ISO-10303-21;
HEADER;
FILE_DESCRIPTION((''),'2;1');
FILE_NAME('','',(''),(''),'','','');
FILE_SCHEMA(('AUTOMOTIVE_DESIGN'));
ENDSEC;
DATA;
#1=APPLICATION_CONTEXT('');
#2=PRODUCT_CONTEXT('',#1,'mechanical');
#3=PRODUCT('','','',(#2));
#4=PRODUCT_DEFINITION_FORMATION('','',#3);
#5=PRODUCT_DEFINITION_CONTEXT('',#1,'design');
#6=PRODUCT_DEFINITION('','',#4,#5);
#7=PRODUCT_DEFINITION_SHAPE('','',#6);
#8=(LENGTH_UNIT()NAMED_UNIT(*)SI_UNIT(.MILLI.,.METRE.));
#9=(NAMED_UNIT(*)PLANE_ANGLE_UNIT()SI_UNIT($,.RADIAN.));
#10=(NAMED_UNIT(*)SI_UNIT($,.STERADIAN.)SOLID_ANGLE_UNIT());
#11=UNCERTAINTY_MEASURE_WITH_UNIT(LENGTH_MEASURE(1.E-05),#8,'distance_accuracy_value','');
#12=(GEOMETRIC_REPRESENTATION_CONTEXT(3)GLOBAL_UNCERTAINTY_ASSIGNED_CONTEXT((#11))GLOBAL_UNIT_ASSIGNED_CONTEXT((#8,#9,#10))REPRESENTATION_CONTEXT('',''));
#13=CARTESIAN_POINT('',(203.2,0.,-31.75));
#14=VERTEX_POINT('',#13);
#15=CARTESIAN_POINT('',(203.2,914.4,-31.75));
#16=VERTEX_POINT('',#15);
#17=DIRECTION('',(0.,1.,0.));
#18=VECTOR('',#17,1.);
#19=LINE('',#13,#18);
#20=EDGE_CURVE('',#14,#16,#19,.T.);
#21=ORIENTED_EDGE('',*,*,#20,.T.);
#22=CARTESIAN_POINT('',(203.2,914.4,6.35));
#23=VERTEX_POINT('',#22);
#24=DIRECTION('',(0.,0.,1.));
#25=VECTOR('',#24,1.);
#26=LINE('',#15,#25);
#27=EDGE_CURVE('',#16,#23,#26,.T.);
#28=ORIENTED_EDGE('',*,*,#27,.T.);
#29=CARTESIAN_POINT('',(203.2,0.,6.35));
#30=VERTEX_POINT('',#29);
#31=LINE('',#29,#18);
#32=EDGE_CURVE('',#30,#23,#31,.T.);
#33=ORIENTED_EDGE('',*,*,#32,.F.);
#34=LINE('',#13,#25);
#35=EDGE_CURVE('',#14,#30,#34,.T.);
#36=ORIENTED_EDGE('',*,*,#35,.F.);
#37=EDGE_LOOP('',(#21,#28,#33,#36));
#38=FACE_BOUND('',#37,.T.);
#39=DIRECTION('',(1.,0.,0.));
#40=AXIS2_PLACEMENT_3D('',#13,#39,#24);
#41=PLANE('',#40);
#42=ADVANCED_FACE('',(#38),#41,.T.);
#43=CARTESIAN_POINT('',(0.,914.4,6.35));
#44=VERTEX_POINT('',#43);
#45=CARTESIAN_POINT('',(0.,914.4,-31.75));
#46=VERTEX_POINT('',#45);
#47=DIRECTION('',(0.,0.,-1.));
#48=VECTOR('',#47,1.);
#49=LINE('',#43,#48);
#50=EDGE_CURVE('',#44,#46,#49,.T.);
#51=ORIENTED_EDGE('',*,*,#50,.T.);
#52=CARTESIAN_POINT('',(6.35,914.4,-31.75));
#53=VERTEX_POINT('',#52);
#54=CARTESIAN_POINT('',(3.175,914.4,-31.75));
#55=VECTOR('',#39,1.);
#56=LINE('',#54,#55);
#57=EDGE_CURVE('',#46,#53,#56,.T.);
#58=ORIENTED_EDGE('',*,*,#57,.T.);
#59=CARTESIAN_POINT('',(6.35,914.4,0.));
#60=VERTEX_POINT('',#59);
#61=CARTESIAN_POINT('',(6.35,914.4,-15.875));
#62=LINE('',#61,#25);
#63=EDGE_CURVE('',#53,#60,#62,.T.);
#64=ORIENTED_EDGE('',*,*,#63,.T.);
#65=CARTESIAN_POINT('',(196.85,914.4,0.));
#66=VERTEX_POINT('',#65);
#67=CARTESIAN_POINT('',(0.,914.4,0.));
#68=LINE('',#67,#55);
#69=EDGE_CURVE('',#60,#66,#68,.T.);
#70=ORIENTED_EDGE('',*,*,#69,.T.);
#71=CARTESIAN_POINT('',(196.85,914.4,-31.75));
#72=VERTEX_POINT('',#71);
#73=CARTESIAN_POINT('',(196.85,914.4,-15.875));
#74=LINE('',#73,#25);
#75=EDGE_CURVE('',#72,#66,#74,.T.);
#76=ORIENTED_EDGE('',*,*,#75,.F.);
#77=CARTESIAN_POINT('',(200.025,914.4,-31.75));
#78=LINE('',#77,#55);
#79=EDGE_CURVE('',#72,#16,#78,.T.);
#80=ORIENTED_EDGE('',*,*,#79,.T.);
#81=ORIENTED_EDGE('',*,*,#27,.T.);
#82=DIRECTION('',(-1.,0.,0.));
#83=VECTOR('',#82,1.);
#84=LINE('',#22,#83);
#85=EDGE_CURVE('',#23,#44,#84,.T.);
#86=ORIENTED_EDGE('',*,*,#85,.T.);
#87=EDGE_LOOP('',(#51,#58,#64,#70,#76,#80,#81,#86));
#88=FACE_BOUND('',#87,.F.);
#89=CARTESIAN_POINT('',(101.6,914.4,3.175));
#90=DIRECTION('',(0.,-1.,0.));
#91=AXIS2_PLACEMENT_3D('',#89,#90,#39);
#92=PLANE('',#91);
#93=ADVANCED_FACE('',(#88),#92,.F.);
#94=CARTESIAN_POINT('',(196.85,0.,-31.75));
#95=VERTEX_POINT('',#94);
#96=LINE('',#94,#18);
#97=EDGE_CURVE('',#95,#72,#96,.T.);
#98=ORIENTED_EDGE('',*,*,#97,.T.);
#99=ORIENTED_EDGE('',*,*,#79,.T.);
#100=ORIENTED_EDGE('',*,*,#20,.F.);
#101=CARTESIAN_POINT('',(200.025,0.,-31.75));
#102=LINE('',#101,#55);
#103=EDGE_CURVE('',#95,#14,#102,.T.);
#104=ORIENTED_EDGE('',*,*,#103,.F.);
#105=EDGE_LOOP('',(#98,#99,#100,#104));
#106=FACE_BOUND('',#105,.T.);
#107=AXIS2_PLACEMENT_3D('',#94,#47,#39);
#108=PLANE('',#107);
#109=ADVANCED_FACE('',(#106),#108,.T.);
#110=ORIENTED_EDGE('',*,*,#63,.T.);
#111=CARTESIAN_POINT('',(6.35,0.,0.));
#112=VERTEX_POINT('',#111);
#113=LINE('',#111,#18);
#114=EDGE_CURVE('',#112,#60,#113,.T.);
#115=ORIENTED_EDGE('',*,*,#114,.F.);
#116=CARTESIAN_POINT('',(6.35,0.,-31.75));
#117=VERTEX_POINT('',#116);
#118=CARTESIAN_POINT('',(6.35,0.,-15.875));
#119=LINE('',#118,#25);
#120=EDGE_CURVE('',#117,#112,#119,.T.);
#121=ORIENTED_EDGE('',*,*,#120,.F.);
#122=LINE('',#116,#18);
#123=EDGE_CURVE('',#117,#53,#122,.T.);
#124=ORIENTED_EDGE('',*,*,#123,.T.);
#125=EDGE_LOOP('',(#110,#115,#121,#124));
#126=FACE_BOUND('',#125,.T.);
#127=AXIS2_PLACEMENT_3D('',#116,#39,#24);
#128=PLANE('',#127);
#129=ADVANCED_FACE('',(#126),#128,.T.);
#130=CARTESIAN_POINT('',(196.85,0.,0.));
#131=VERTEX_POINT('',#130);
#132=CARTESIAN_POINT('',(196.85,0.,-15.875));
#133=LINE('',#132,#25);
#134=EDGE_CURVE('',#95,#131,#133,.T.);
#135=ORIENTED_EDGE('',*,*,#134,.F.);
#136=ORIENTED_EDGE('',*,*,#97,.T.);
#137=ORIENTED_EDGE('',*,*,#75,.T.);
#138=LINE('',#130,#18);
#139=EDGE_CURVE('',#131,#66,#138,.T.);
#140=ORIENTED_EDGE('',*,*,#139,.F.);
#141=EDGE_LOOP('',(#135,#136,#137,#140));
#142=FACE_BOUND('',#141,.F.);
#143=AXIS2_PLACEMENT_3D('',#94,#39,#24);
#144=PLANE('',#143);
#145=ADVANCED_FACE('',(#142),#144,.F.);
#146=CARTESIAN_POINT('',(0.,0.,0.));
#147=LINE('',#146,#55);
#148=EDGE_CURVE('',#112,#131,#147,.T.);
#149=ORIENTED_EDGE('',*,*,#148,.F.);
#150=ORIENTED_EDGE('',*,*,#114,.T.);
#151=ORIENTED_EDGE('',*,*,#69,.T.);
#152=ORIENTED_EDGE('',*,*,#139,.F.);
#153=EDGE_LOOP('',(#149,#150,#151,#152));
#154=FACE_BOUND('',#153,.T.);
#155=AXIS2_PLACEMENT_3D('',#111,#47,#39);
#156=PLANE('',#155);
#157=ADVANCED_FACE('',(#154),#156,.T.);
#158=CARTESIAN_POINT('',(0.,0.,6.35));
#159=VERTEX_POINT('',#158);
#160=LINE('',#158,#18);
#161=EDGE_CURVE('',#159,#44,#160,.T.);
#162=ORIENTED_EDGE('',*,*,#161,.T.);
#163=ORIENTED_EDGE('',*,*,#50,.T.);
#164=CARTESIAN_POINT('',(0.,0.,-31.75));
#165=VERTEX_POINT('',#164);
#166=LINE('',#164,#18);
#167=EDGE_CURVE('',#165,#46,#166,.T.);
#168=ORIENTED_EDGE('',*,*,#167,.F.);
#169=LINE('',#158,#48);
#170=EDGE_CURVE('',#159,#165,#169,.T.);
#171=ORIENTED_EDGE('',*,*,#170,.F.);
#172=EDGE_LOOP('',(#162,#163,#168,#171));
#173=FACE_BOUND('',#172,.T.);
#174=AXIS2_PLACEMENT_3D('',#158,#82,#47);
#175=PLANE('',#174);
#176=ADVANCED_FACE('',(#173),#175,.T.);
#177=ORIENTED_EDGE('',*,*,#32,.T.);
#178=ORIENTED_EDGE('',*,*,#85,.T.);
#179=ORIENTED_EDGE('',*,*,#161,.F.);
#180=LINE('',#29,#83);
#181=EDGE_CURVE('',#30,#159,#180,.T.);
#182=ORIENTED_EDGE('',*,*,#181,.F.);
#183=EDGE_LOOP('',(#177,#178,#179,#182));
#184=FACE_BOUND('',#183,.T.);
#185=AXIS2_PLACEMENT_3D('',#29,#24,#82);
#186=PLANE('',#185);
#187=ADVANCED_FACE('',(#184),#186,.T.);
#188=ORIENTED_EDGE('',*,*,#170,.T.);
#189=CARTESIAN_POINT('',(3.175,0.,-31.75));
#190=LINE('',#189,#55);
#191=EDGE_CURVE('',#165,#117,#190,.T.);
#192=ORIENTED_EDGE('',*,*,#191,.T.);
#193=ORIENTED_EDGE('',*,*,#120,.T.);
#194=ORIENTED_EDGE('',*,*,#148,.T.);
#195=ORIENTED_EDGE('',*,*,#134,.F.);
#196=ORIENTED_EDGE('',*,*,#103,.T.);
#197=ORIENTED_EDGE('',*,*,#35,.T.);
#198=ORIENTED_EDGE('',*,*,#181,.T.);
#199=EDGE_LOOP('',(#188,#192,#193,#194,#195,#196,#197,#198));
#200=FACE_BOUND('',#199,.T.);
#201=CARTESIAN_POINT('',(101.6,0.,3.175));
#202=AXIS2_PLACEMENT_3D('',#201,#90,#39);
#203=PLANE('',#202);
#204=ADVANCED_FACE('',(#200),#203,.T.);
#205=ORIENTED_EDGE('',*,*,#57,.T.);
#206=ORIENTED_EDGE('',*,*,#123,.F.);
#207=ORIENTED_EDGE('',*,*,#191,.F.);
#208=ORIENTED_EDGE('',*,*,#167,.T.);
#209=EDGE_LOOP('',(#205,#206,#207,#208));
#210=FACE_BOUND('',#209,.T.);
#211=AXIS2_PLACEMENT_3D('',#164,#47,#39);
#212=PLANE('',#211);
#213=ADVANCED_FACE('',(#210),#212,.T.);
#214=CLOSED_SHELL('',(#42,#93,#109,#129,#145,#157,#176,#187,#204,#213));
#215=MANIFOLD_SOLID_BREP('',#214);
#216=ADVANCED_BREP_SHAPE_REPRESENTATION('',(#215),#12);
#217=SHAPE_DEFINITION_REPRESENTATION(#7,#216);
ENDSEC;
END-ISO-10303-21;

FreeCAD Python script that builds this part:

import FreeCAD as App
import Part
import Sketcher

V = App.Vector
Q = App.Units.Quantity

doc = App.newDocument("Part")
params = doc.addObject("Spreadsheet::Sheet", "Params")
for row, (alias, value) in enumerate([
    ("sketch1_width", "8 in"),
    ("sketch1_width2", "7.5 in"),
    ("sketch1_height", "1.5 in"),
    ("sketch1_height2", "1.25 in"),
    ("pad1_length", "36 in"),
], start=1):
    params.set(f"A{row}", alias)
    params.set(f"B{row}", "=" + value)
    params.setAlias(f"B{row}", alias)

body = doc.addObject("PartDesign::Body", "Body")

# Sketch on XZ plane
sketch1 = body.newObject("Sketcher::SketchObject", "Sketch")
sketch1.AttachmentSupport = (doc.getObject("XZ_Plane"), [""])
sketch1.MapMode = "FlatFace"
sketch1.addGeometry([
    Part.LineSegment(V(0, 6.35, 0), V(0, -31.75, 0)),  # 0
    Part.LineSegment(V(0, -31.75, 0), V(6.35, -31.75, 0)),  # 1
    Part.LineSegment(V(6.35, -31.75, 0), V(6.35, 0, 0)),  # 2
    Part.LineSegment(V(6.35, 0, 0), V(196.85, 0, 0)),  # 3
    Part.LineSegment(V(196.85, 0, 0), V(196.85, -31.75, 0)),  # 4
    Part.LineSegment(V(196.85, -31.75, 0), V(203.2, -31.75, 0)),  # 5
    Part.LineSegment(V(203.2, -31.75, 0), V(203.2, 6.35, 0)),  # 6
    Part.LineSegment(V(203.2, 6.35, 0), V(0, 6.35, 0)),  # 7
], False)
sketch1.addConstraint([
    Sketcher.Constraint("Coincident", 0, 2, 1, 1),
    Sketcher.Constraint("Coincident", 1, 2, 2, 1),
    Sketcher.Constraint("Coincident", 2, 2, 3, 1),
    Sketcher.Constraint("Coincident", 3, 2, 4, 1),
    Sketcher.Constraint("Coincident", 4, 2, 5, 1),
    Sketcher.Constraint("Coincident", 5, 2, 6, 1),
    Sketcher.Constraint("Coincident", 6, 2, 7, 1),
    Sketcher.Constraint("Coincident", 7, 2, 0, 1),
    Sketcher.Constraint("Vertical", 0),
    Sketcher.Constraint("Horizontal", 1),
    Sketcher.Constraint("Vertical", 2),
    Sketcher.Constraint("Horizontal", 3),
    Sketcher.Constraint("Vertical", 4),
    Sketcher.Constraint("Horizontal", 5),
    Sketcher.Constraint("Vertical", 6),
    Sketcher.Constraint("Horizontal", 7),
    Sketcher.Constraint("PointOnObject", 0, 2, -2),
    Sketcher.Constraint("PointOnObject", 2, 2, -1),
    Sketcher.Constraint("Horizontal", 1, 2, 4, 2),
    Sketcher.Constraint("Equal", 1, 5),
    Sketcher.Constraint("DistanceX", 7, 2, 7, 1, Q("8 in")),
    Sketcher.Constraint("DistanceX", 3, 1, 3, 2, Q("7.5 in")),
    Sketcher.Constraint("DistanceY", 0, 2, 0, 1, Q("1.5 in")),
    Sketcher.Constraint("DistanceY", 2, 1, 2, 2, Q("1.25 in")),
])
sketch1.setExpression("Constraints[20]", "Params.sketch1_width")
sketch1.setExpression("Constraints[21]", "Params.sketch1_width2")
sketch1.setExpression("Constraints[22]", "Params.sketch1_height")
sketch1.setExpression("Constraints[23]", "Params.sketch1_height2")
pad1 = body.newObject("PartDesign::Pad", "Pad")
pad1.Profile = sketch1
pad1.setExpression("Length", "Params.pad1_length")
pad1.Reversed = True

doc.recompute()
